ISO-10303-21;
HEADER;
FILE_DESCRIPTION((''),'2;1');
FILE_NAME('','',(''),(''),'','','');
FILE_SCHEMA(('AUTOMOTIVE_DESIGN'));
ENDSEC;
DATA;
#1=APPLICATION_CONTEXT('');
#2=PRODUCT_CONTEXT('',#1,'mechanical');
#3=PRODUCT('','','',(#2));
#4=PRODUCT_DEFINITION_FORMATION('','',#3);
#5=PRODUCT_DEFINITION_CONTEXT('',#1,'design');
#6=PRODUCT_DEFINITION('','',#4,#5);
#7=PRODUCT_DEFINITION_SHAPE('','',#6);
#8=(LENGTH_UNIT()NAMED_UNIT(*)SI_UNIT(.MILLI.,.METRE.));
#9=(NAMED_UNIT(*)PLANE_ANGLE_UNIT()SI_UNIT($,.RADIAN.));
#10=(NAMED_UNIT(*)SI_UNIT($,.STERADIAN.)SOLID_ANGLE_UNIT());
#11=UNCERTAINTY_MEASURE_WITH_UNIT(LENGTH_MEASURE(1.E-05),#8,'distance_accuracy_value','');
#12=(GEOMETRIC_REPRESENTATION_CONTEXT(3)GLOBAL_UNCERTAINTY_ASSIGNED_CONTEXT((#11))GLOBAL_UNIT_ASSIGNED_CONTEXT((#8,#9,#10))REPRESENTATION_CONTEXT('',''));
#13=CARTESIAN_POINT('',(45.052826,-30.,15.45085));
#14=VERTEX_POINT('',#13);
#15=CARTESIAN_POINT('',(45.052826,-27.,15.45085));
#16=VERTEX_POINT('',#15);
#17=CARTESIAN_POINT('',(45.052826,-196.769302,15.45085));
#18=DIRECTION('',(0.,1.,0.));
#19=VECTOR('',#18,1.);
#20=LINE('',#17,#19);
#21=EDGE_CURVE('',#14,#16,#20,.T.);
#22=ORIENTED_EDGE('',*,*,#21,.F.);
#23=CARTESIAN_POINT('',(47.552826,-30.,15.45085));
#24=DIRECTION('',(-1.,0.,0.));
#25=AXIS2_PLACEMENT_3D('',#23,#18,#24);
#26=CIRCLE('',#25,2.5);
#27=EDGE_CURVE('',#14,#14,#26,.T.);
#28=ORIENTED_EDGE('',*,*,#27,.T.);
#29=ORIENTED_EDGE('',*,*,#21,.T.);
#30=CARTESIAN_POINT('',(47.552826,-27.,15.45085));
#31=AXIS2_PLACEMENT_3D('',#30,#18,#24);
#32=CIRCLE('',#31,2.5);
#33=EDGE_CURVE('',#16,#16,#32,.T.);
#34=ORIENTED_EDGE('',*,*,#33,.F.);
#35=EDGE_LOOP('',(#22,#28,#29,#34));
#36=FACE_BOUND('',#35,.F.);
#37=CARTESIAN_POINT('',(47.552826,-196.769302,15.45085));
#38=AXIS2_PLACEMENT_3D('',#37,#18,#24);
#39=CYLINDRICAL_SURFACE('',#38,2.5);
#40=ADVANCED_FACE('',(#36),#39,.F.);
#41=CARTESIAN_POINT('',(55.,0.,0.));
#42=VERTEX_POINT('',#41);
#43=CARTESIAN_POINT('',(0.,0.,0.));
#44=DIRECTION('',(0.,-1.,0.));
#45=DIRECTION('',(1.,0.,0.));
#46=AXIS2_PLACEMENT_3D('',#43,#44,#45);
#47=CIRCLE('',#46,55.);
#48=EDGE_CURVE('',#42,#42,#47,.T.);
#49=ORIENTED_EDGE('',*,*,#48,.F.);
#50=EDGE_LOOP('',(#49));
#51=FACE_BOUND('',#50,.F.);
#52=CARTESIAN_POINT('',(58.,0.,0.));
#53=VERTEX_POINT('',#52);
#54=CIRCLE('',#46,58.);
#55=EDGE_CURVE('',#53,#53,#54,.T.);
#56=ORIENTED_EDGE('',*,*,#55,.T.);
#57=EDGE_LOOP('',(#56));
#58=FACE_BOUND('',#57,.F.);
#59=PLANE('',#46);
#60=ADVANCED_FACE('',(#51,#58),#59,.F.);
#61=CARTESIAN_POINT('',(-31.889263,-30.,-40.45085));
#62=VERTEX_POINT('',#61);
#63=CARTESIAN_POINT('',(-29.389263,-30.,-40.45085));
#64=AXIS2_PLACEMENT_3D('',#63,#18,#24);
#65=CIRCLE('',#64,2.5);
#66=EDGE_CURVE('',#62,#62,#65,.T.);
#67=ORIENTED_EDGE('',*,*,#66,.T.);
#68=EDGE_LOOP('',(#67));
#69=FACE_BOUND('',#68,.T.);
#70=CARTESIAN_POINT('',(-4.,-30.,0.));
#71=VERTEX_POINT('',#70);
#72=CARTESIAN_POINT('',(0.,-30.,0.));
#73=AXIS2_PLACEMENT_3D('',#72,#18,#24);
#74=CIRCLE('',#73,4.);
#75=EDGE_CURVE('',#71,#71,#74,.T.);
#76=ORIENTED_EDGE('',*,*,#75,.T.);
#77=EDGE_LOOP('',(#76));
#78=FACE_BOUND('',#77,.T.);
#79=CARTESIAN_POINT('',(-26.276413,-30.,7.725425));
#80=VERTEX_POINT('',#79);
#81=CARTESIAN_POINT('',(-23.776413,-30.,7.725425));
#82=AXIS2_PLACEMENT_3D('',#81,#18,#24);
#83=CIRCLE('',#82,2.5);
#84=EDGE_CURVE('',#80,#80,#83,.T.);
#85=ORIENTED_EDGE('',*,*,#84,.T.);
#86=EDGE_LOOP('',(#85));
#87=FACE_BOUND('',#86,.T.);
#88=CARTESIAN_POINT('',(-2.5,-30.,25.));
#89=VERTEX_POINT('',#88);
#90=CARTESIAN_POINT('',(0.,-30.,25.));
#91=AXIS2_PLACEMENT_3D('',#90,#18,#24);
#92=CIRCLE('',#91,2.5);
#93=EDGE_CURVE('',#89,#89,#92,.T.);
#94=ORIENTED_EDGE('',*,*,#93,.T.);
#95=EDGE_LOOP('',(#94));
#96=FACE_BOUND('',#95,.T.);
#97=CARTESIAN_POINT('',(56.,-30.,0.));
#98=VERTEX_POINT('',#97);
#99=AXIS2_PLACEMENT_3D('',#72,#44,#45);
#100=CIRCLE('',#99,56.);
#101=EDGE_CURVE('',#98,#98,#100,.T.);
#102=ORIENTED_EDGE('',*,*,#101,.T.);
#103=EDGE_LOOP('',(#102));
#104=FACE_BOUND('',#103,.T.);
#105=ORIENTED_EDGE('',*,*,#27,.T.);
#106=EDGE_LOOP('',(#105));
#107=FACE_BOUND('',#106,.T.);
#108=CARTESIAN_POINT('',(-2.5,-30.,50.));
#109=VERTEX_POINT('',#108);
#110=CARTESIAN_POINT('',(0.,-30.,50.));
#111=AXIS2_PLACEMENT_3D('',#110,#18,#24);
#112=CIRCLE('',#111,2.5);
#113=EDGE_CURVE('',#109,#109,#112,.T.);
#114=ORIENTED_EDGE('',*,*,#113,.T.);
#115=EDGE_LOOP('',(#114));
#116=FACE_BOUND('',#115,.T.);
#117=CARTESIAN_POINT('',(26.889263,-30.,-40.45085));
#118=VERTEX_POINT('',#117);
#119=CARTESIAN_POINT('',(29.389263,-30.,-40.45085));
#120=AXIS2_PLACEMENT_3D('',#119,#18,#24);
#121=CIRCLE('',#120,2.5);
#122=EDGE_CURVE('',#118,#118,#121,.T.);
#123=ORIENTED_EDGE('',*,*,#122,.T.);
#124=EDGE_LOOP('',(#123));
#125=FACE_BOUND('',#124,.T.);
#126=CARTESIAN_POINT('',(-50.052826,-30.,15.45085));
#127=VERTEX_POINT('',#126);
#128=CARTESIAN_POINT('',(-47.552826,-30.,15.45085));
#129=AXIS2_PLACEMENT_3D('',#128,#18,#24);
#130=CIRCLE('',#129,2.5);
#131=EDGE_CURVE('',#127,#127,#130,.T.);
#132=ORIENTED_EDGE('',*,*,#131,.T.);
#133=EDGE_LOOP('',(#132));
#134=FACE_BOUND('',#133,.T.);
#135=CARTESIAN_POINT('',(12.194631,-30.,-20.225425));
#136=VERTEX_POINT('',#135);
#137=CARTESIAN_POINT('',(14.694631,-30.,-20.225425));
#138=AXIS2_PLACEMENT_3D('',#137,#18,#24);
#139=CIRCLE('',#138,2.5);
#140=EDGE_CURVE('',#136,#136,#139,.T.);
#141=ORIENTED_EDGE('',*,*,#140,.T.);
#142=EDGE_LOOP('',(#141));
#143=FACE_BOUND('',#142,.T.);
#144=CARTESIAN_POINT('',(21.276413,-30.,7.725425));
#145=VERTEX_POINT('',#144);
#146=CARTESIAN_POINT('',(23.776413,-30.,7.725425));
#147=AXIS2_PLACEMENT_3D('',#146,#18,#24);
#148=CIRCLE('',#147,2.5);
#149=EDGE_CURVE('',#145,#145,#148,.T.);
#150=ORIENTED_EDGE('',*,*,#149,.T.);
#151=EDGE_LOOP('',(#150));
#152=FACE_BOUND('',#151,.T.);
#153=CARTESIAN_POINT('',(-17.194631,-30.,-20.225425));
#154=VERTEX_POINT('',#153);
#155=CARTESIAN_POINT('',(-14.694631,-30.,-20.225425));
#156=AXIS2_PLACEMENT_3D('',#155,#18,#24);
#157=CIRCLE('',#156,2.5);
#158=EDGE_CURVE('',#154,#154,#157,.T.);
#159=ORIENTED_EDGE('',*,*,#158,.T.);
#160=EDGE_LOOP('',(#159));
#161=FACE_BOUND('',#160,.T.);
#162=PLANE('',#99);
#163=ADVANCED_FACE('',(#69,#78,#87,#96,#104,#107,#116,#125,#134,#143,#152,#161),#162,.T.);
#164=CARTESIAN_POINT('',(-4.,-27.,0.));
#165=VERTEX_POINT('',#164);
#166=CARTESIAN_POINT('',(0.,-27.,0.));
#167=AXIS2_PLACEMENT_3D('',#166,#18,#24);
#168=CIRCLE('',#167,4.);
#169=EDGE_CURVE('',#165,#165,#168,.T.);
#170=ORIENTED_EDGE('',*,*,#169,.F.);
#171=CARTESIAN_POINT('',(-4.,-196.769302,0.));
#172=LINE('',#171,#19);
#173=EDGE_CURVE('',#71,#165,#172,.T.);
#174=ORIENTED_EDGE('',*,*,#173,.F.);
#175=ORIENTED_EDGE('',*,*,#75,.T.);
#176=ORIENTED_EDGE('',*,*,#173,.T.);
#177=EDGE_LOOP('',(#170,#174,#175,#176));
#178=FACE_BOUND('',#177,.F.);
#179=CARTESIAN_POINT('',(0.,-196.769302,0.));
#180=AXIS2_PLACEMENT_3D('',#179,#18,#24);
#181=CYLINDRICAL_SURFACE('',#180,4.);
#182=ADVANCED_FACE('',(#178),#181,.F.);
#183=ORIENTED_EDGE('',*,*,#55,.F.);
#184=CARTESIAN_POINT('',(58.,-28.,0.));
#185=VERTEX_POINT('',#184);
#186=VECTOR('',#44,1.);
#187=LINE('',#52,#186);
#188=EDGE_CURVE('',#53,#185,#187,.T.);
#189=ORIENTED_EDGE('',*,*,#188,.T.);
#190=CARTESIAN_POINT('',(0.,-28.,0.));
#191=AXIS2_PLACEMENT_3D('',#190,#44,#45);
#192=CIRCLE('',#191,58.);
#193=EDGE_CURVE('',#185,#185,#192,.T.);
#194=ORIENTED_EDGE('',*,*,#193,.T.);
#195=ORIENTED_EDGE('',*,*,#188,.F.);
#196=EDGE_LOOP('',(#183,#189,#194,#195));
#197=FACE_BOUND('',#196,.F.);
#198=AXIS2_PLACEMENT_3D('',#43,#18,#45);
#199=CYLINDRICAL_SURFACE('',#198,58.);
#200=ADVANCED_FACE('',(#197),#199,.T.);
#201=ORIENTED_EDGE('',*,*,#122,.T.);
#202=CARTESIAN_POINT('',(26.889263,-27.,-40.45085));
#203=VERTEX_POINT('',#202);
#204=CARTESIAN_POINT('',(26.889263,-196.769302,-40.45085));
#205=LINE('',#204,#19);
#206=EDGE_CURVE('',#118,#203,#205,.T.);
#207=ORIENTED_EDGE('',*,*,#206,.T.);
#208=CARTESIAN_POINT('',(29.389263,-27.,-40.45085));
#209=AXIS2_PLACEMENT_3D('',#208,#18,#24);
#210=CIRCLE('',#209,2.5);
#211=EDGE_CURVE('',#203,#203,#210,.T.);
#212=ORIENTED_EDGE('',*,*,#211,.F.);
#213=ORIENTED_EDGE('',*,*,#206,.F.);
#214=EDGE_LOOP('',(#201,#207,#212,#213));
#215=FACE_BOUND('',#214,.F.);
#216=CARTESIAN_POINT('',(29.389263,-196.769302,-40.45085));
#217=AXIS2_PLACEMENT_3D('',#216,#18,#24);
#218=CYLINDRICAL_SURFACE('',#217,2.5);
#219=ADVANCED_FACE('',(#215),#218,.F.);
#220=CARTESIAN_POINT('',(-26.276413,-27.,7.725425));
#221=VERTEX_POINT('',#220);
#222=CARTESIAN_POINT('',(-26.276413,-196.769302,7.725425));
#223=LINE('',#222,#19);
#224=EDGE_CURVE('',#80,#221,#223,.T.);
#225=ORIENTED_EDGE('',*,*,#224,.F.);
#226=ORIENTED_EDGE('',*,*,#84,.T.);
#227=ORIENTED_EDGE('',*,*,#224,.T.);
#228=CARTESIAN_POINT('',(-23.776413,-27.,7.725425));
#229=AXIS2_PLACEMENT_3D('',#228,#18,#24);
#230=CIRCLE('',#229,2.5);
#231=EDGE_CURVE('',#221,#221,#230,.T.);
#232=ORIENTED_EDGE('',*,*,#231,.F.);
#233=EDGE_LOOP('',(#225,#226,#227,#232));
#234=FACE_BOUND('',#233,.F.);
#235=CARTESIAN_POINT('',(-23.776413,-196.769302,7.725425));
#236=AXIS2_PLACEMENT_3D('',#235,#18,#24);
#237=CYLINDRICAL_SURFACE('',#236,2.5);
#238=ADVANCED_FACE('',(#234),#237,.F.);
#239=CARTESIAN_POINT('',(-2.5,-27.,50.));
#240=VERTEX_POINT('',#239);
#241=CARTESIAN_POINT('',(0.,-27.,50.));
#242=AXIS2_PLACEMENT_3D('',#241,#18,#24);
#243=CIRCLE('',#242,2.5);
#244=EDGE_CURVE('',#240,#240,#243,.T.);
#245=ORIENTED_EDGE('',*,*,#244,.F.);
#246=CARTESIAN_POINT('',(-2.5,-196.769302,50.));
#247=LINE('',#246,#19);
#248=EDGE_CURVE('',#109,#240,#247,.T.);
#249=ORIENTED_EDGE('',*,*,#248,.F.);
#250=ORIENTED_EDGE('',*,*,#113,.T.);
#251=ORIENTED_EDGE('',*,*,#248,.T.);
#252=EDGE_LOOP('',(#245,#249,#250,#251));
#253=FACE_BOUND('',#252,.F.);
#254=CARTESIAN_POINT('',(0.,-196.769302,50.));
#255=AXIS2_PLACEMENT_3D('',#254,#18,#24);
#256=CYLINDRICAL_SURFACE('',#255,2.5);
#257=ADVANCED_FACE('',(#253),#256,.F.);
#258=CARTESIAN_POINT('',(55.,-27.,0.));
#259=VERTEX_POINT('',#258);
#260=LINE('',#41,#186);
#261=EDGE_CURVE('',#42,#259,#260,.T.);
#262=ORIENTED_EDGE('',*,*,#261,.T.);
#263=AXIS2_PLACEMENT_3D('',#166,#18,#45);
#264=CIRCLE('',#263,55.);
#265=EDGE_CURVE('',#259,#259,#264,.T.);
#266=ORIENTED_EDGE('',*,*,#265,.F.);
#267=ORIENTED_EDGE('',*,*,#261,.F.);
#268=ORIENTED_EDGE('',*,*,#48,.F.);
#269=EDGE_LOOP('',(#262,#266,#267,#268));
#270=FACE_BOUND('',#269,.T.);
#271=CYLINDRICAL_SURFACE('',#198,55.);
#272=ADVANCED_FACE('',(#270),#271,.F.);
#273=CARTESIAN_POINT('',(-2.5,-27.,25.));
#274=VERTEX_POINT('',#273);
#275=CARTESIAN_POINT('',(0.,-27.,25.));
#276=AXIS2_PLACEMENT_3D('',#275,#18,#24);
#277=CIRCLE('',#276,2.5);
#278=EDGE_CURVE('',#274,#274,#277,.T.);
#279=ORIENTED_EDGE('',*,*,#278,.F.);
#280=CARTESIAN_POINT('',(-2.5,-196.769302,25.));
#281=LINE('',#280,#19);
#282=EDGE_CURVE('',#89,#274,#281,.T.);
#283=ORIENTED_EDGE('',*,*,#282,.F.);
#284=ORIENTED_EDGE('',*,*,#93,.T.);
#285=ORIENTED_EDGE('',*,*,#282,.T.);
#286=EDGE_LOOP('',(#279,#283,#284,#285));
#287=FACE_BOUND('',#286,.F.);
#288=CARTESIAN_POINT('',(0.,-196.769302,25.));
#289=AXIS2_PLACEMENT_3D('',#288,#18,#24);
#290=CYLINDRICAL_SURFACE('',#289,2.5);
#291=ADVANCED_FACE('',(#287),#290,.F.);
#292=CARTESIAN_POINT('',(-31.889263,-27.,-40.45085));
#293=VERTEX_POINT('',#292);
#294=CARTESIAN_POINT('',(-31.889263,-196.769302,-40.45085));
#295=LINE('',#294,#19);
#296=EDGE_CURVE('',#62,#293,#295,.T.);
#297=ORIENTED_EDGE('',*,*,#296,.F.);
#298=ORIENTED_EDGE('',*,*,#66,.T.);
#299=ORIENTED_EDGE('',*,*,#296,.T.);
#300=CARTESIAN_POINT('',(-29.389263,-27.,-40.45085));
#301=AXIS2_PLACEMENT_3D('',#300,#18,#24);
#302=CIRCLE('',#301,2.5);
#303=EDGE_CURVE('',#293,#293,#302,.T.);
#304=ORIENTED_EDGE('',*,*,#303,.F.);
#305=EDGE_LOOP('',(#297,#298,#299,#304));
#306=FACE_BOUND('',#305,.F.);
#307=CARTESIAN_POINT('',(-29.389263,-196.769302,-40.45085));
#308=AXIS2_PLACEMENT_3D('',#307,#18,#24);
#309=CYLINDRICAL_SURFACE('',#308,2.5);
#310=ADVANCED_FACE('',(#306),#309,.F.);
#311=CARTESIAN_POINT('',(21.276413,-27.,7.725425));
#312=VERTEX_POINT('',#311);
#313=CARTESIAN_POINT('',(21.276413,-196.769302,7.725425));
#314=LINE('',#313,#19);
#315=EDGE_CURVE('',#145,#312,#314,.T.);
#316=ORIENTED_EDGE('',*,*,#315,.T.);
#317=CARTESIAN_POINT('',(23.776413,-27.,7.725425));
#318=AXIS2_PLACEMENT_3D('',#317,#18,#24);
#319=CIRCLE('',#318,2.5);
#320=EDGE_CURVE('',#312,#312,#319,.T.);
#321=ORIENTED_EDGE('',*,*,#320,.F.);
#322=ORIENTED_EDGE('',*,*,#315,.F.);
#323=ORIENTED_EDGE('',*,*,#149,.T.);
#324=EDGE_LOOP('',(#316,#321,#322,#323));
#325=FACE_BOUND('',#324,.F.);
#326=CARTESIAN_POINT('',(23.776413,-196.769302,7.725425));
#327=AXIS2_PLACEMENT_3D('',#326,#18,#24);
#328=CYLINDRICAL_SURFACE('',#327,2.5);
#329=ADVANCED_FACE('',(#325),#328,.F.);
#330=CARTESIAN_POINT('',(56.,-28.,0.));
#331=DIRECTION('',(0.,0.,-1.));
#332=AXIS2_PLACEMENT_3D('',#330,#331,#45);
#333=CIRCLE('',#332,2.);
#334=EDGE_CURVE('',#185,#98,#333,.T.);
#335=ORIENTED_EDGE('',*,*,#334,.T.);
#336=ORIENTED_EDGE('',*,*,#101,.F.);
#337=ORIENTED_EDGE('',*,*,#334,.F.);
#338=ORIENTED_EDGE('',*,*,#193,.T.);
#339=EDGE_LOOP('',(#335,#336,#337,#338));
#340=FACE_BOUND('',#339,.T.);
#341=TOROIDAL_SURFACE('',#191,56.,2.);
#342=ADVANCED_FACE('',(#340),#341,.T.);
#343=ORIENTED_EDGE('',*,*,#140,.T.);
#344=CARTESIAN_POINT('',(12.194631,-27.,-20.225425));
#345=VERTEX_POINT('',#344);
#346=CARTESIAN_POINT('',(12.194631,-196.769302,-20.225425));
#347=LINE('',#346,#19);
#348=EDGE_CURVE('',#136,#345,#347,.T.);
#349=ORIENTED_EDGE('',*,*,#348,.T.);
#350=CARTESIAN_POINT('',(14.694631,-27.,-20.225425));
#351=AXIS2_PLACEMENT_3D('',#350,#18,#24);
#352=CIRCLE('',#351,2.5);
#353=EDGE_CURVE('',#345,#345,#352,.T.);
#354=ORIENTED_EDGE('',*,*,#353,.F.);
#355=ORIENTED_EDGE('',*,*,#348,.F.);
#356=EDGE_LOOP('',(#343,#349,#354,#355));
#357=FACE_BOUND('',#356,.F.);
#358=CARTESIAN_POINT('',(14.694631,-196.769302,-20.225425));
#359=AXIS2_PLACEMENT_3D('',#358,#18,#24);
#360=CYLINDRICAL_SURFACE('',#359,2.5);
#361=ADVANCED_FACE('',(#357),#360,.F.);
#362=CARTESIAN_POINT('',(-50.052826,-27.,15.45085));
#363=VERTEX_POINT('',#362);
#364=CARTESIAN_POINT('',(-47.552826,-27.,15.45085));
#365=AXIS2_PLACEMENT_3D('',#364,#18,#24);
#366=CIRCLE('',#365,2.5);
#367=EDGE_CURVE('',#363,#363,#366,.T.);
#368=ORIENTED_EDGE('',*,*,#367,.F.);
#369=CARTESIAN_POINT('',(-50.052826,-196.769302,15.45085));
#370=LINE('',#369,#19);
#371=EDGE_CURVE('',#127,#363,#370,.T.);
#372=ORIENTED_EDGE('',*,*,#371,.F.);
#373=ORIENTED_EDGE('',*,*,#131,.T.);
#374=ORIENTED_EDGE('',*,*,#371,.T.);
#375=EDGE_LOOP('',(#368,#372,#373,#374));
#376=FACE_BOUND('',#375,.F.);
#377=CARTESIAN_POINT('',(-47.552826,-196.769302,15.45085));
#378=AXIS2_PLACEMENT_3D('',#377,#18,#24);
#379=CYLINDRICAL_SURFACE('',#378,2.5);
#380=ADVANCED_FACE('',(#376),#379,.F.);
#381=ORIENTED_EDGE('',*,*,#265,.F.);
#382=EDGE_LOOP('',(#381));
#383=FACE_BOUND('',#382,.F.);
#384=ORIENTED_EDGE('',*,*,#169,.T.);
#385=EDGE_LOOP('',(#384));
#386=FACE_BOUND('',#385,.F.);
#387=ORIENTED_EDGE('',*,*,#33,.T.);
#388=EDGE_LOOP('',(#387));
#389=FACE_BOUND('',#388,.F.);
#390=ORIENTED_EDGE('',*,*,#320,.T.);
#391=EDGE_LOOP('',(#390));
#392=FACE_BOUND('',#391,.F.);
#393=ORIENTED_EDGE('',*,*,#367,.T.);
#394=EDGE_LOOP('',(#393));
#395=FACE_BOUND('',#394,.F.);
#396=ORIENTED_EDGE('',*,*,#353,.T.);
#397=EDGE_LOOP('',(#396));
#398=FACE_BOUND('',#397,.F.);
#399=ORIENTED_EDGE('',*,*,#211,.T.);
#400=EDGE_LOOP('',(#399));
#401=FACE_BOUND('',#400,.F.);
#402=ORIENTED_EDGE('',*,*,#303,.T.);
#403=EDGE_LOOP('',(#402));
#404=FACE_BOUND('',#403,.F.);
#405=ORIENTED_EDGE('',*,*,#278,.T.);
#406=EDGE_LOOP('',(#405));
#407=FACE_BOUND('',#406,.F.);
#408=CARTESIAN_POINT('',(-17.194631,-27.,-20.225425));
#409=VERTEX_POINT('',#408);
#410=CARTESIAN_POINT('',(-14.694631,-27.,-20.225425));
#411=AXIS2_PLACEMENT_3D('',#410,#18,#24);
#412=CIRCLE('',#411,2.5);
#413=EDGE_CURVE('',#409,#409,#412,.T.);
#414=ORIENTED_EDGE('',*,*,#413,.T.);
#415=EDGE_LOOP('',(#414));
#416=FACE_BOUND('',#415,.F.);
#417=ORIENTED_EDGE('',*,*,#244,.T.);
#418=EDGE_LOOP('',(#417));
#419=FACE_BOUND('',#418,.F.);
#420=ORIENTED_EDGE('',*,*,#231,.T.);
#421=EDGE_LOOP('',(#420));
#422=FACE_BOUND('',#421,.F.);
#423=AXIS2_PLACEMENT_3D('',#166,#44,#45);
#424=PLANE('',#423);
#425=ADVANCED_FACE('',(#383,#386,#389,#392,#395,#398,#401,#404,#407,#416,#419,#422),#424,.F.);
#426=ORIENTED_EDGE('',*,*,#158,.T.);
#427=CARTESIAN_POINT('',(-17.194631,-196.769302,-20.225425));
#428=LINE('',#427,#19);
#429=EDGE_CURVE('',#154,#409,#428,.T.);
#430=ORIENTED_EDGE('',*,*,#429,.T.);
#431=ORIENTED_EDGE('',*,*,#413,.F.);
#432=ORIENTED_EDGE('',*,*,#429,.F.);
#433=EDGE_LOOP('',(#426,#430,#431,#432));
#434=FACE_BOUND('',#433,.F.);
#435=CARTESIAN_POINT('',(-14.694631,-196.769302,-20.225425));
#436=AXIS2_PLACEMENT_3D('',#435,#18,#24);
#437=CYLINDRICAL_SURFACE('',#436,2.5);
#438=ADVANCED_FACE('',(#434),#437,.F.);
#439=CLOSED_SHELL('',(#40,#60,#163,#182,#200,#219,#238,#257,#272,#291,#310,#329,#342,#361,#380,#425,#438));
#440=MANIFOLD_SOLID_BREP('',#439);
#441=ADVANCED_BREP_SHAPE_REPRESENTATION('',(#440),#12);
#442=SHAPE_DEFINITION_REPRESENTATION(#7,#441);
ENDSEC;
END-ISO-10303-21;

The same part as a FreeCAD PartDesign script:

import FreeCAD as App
import Part
import Sketcher
from FreeCAD import Vector
Q = App.Units.Quantity


def edges_at(feature, points):
    """Names of the edges that pass closest to the given points."""
    edges = feature.Shape.Edges
    near = lambda p: min(range(len(edges)), key=lambda i: edges[i].distToShape(Part.Vertex(*p))[0])
    return sorted({f"Edge{near(p) + 1}" for p in points})


def faces_at(feature, points):
    """Names of the faces that lie closest to the given points."""
    faces = feature.Shape.Faces
    near = lambda p: min(range(len(faces)), key=lambda i: faces[i].distToShape(Part.Vertex(*p))[0])
    return sorted({f"Face{near(p) + 1}" for p in points})

doc = App.newDocument("Part")
body = doc.addObject("PartDesign::Body", "Body")

sketch1 = body.newObject("Sketcher::SketchObject", "Sketch")
sketch1.AttachmentSupport = (doc.getObject("XZ_Plane"), [""])
sketch1.MapMode = "FlatFace"
sketch1.addGeometry(Part.Circle(Vector(0, 0, 0), Vector(0, 0, 1), 58), False)
sketch1.addConstraint([
    Sketcher.Constraint("Coincident", 0, 3, -1, 1),
    Sketcher.Constraint("Diameter", 0, Q("116 mm")),
])
pad1 = body.newObject("PartDesign::Pad", "Pad")
pad1.Profile = sketch1
pad1.Length = 30
doc.recompute()

thickness = body.newObject("PartDesign::Thickness", "Thickness")
thickness.Base = (pad1, faces_at(pad1, [(0, 0, 0)]))
thickness.Value = 3
thickness.Reversed = True
thickness.Join = "Arc"
doc.recompute()

fillet = body.newObject("PartDesign::Fillet", "Fillet")
fillet.Base = (thickness, edges_at(thickness, [(-58, -30, 0)]))
fillet.Radius = 2

sketch2 = body.newObject("Sketcher::SketchObject", "Sketch001")
sketch2.AttachmentSupport = (doc.getObject("XZ_Plane"), [""])
sketch2.MapMode = "FlatFace"
sketch2.AttachmentOffset = App.Placement(Vector(0, 0, 30), App.Rotation())
sketch2.addGeometry(Part.Circle(Vector(0, 0, 0), Vector(0, 0, 1), 4), False)
sketch2.addConstraint([
    Sketcher.Constraint("Coincident", 0, 3, -1, 1),
    Sketcher.Constraint("Diameter", 0, Q("8 mm")),
])
doc.recompute()
hole = body.newObject("PartDesign::Hole", "Hole")
hole.Profile = sketch2
hole.ThreadType = "None"
hole.Diameter = 8
hole.DepthType = "ThroughAll"

sketch3 = body.newObject("Sketcher::SketchObject", "Sketch002")
sketch3.AttachmentSupport = (doc.getObject("XZ_Plane"), [""])
sketch3.MapMode = "FlatFace"
sketch3.AttachmentOffset = App.Placement(Vector(0, 0, 30), App.Rotation())
sketch3.addGeometry([
    Part.Circle(Vector(0, 25, 0), Vector(0, 0, 1), 2.5),
    Part.Circle(Vector(0, 50, 0), Vector(0, 0, 1), 2.5),
    Part.Circle(Vector(-23.8, 7.7, 0), Vector(0, 0, 1), 2.5),
    Part.Circle(Vector(-47.6, 15.5, 0), Vector(0, 0, 1), 2.5),
    Part.Circle(Vector(-29.4, -40.5, 0), Vector(0, 0, 1), 2.5),
    Part.Circle(Vector(-14.7, -20.2, 0), Vector(0, 0, 1), 2.5),
    Part.Circle(Vector(14.7, -20.2, 0), Vector(0, 0, 1), 2.5),
    Part.Circle(Vector(29.4, -40.5, 0), Vector(0, 0, 1), 2.5),
    Part.Circle(Vector(23.8, 7.7, 0), Vector(0, 0, 1), 2.5),
    Part.Circle(Vector(47.6, 15.5, 0), Vector(0, 0, 1), 2.5),
], False)
sketch3.addConstraint([
    Sketcher.Constraint("Equal", 0, 1),
    Sketcher.Constraint("Equal", 1, 2),
    Sketcher.Constraint("Equal", 2, 3),
    Sketcher.Constraint("Equal", 3, 4),
    Sketcher.Constraint("Equal", 4, 5),
    Sketcher.Constraint("Equal", 5, 6),
    Sketcher.Constraint("Equal", 6, 7),
    Sketcher.Constraint("Equal", 7, 8),
    Sketcher.Constraint("Equal", 8, 9),
    Sketcher.Constraint("Symmetric", 5, 3, 6, 3, -2),
    Sketcher.Constraint("Symmetric", 4, 3, 7, 3, -2),
    Sketcher.Constraint("Symmetric", 2, 3, 8, 3, -2),
    Sketcher.Constraint("Symmetric", 3, 3, 9, 3, -2),
    Sketcher.Constraint("PointOnObject", 0, 3, -2),
    Sketcher.Constraint("PointOnObject", 1, 3, -2),
    Sketcher.Constraint("Diameter", 0, Q("5 mm")),
    Sketcher.Constraint("DistanceY", -1, 1, 0, 3, Q("25 mm")),
    Sketcher.Constraint("DistanceY", -1, 1, 1, 3, Q("50 mm")),
    Sketcher.Constraint("DistanceY", 4, 3, 3, 3, Q("55.9017 mm")),
    Sketcher.Constraint("DistanceY", -1, 1, 3, 3, Q("15.45085 mm")),
    Sketcher.Constraint("DistanceX", 5, 3, -1, 1, Q("14.694631 mm")),
    Sketcher.Constraint("DistanceX", 4, 3, 2, 3, Q("5.61285 mm")),
    Sketcher.Constraint("DistanceY", 5, 3, 2, 3, Q("27.95085 mm")),
    Sketcher.Constraint("DistanceX", 2, 3, -1, 1, Q("23.776413 mm")),
    Sketcher.Constraint("DistanceY", -1, 1, 2, 3, Q("7.725425 mm")),
    Sketcher.Constraint("DistanceX", 3, 3, -1, 1, Q("47.552826 mm")),
])
doc.recompute()
hole2 = body.newObject("PartDesign::Hole", "Hole001")
hole2.Profile = sketch3
hole2.ThreadType = "None"
hole2.Diameter = 5
hole2.DepthType = "ThroughAll"

doc.recompute()
